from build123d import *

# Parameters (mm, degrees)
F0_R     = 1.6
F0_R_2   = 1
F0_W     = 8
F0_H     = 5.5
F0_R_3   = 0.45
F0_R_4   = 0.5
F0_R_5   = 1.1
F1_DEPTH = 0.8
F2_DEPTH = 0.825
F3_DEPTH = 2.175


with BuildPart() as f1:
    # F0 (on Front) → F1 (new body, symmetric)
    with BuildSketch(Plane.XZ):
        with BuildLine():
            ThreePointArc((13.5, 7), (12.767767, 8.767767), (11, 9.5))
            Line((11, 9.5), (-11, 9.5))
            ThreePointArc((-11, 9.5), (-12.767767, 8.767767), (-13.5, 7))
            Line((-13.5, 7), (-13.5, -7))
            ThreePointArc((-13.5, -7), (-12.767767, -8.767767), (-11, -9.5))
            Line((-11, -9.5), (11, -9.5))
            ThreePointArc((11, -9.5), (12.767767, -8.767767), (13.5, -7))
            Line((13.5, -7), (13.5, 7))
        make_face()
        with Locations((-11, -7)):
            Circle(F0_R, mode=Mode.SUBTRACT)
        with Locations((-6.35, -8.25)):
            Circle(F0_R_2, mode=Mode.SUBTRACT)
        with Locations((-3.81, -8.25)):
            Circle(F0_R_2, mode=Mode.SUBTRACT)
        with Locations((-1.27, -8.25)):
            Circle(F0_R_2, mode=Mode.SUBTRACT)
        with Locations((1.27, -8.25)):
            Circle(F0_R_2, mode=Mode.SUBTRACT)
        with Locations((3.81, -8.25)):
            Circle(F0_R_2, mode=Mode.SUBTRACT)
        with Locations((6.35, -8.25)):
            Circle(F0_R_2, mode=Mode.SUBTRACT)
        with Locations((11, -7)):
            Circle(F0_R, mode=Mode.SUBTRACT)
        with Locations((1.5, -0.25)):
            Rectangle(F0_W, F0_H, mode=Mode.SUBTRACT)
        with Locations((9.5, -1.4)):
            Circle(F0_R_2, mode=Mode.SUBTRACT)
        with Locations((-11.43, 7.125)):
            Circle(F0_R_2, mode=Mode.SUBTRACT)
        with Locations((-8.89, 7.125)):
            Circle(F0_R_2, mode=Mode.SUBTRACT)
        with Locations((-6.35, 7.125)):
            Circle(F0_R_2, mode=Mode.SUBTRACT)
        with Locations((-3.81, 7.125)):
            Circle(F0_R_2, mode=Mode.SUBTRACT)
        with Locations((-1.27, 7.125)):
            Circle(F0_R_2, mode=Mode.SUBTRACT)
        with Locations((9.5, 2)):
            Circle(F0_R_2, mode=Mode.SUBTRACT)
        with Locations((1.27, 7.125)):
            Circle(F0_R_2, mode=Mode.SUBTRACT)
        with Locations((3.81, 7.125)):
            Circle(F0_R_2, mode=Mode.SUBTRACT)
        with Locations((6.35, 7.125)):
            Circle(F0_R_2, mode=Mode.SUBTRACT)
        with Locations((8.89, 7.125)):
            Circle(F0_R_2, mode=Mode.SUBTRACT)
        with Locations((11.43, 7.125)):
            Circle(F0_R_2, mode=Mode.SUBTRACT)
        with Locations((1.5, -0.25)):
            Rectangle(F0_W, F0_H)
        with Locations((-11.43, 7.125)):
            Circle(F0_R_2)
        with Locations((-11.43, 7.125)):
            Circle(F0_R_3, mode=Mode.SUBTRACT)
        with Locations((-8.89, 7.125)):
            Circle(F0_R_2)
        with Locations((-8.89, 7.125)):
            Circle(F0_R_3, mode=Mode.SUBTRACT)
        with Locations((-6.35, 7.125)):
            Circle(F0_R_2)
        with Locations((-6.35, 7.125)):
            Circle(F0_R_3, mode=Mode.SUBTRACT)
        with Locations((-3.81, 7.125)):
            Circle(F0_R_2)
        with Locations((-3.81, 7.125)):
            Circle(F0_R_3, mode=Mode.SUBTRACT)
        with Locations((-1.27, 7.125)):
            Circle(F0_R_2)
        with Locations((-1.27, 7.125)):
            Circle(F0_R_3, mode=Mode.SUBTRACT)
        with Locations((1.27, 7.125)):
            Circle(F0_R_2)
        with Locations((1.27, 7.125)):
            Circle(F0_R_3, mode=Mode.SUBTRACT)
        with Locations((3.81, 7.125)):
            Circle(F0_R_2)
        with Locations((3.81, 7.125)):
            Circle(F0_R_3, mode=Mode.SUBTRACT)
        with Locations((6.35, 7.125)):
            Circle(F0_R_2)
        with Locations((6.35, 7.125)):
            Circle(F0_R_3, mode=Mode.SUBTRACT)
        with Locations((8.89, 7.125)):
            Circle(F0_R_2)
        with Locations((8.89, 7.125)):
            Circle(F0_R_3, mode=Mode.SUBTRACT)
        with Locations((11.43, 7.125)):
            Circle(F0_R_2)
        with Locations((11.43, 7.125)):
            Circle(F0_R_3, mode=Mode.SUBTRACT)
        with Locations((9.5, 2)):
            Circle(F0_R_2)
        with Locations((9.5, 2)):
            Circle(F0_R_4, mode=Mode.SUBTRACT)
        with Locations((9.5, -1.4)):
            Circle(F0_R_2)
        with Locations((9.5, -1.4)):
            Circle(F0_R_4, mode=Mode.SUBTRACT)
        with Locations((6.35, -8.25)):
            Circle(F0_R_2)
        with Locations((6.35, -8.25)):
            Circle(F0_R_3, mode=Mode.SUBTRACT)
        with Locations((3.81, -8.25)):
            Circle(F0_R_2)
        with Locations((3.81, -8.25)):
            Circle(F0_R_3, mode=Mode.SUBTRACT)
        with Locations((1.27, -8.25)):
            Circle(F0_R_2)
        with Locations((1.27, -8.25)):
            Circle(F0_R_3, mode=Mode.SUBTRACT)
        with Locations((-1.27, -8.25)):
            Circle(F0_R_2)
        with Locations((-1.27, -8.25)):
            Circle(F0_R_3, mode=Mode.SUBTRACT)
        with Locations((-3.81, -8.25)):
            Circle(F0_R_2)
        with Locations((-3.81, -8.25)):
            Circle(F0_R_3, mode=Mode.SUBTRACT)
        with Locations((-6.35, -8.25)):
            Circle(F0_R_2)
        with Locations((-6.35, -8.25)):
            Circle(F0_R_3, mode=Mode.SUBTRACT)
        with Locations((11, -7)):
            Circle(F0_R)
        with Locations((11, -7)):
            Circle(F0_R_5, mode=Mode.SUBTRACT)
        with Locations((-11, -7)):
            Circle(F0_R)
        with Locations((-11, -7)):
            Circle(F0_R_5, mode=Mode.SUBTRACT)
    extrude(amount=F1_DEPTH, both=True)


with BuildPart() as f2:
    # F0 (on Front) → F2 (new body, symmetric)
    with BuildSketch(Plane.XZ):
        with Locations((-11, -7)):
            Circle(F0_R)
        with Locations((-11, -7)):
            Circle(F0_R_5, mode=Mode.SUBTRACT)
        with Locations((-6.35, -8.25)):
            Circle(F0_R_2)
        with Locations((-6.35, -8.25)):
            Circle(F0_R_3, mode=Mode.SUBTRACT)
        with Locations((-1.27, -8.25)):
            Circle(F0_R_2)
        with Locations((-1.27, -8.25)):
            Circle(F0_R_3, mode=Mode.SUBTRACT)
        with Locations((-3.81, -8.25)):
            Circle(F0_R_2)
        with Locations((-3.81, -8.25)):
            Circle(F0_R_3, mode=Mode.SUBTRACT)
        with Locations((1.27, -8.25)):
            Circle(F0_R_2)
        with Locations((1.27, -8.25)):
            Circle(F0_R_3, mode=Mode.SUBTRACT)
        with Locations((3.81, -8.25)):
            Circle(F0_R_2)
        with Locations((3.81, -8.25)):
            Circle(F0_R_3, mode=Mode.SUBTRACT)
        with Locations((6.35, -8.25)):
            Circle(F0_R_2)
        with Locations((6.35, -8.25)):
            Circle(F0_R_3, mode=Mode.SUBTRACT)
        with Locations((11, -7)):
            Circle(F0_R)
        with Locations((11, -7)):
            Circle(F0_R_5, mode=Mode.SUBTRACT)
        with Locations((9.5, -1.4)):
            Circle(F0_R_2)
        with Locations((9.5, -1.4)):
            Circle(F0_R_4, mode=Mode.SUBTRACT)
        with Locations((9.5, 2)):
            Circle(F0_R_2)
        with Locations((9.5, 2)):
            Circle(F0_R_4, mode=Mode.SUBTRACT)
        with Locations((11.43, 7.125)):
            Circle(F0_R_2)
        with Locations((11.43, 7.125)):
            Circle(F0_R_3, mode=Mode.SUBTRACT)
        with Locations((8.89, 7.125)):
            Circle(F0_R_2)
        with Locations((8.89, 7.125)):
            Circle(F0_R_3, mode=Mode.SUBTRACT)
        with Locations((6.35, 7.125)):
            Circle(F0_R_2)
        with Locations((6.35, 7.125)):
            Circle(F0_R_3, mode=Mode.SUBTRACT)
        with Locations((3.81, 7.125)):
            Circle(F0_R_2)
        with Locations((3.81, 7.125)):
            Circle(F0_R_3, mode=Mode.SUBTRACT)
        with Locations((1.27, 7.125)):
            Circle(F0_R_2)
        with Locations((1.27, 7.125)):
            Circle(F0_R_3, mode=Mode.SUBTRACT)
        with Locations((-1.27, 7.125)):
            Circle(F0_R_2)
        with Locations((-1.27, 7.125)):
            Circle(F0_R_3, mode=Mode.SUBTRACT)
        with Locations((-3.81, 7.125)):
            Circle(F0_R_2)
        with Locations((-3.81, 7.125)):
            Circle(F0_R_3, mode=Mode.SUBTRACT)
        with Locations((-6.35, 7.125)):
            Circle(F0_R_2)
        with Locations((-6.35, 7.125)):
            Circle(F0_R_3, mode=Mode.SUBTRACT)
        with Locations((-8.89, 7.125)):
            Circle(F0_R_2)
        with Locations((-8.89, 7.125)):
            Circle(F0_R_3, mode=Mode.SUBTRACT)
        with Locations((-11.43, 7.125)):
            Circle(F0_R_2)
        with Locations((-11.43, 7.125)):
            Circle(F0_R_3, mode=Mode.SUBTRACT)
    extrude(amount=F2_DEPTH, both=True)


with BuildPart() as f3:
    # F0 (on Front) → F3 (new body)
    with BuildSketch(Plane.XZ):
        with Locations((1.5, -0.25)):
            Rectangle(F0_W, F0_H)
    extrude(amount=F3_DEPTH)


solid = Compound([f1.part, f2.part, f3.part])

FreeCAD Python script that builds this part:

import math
import FreeCAD as App
import Part
import Sketcher
from FreeCAD import Vector
Q = App.Units.Quantity

doc = App.newDocument("Part")
body = doc.addObject("PartDesign::Body", "Body")

# Sketch on XZ plane
sketch1 = body.newObject("Sketcher::SketchObject", "Sketch")
sketch1.AttachmentSupport = (doc.getObject("XZ_Plane"), [""])
sketch1.MapMode = "FlatFace"
sketch1.addGeometry(Part.ArcOfCircle(Part.Circle(Vector(11, 7, 0), Vector(0, 0, 1), 2.5), math.radians(0), math.radians(90)), False)
sketch1.addGeometry(Part.LineSegment(Vector(11, 9.5, 0), Vector(-11, 9.5, 0)), False)
sketch1.addGeometry(Part.ArcOfCircle(Part.Circle(Vector(-11, 7, 0), Vector(0, 0, 1), 2.5), math.radians(90), math.radians(180)), False)
sketch1.addGeometry(Part.LineSegment(Vector(-13.5, 7, 0), Vector(-13.5, -7, 0)), False)
sketch1.addGeometry(Part.ArcOfCircle(Part.Circle(Vector(-11, -7, 0), Vector(0, 0, 1), 2.5), math.radians(180), math.radians(270)), False)
sketch1.addGeometry(Part.LineSegment(Vector(-11, -9.5, 0), Vector(11, -9.5, 0)), False)
sketch1.addGeometry(Part.ArcOfCircle(Part.Circle(Vector(11, -7, 0), Vector(0, 0, 1), 2.5), math.radians(-90), math.radians(0)), False)
sketch1.addGeometry(Part.LineSegment(Vector(13.5, -7, 0), Vector(13.5, 7, 0)), False)
sketch1.addGeometry(Part.Circle(Vector(-11, -7, 0), Vector(0, 0, 1), 1.1), False)
sketch1.addGeometry(Part.Circle(Vector(-6.35, -8.25, 0), Vector(0, 0, 1), 0.45), False)
sketch1.addGeometry(Part.Circle(Vector(-3.81, -8.25, 0), Vector(0, 0, 1), 0.45), False)
sketch1.addGeometry(Part.Circle(Vector(-1.27, -8.25, 0), Vector(0, 0, 1), 0.45), False)
sketch1.addGeometry(Part.Circle(Vector(1.27, -8.25, 0), Vector(0, 0, 1), 0.45), False)
sketch1.addGeometry(Part.Circle(Vector(3.81, -8.25, 0), Vector(0, 0, 1), 0.45), False)
sketch1.addGeometry(Part.Circle(Vector(6.35, -8.25, 0), Vector(0, 0, 1), 0.45), False)
sketch1.addGeometry(Part.Circle(Vector(11, -7, 0), Vector(0, 0, 1), 1.1), False)
sketch1.addGeometry(Part.Circle(Vector(9.5, -1.4, 0), Vector(0, 0, 1), 0.5), False)
sketch1.addGeometry(Part.Circle(Vector(-11.43, 7.12, 0), Vector(0, 0, 1), 0.45), False)
sketch1.addGeometry(Part.Circle(Vector(-8.89, 7.12, 0), Vector(0, 0, 1), 0.45), False)
sketch1.addGeometry(Part.Circle(Vector(-6.35, 7.12, 0), Vector(0, 0, 1), 0.45), False)
sketch1.addGeometry(Part.Circle(Vector(-3.81, 7.12, 0), Vector(0, 0, 1), 0.45), False)
sketch1.addGeometry(Part.Circle(Vector(-1.27, 7.12, 0), Vector(0, 0, 1), 0.45), False)
sketch1.addGeometry(Part.Circle(Vector(9.5, 2, 0), Vector(0, 0, 1), 0.5), False)
sketch1.addGeometry(Part.Circle(Vector(1.27, 7.12, 0), Vector(0, 0, 1), 0.45), False)
sketch1.addGeometry(Part.Circle(Vector(3.81, 7.12, 0), Vector(0, 0, 1), 0.45), False)
sketch1.addGeometry(Part.Circle(Vector(6.35, 7.12, 0), Vector(0, 0, 1), 0.45), False)
sketch1.addGeometry(Part.Circle(Vector(8.89, 7.12, 0), Vector(0, 0, 1), 0.45), False)
sketch1.addGeometry(Part.Circle(Vector(11.43, 7.12, 0), Vector(0, 0, 1), 0.45), False)
sketch1.addConstraint(Sketcher.Constraint("Tangent", 0, 2, 1, 1))
sketch1.addConstraint(Sketcher.Constraint("Tangent", 1, 2, 2, 1))
sketch1.addConstraint(Sketcher.Constraint("Tangent", 2, 2, 3, 1))
sketch1.addConstraint(Sketcher.Constraint("Tangent", 3, 2, 4, 1))
sketch1.addConstraint(Sketcher.Constraint("Tangent", 4, 2, 5, 1))
sketch1.addConstraint(Sketcher.Constraint("Tangent", 5, 2, 6, 1))
sketch1.addConstraint(Sketcher.Constraint("Tangent", 6, 2, 7, 1))
sketch1.addConstraint(Sketcher.Constraint("Tangent", 7, 2, 0, 1))
sketch1.addConstraint(Sketcher.Constraint("Horizontal", 1))
sketch1.addConstraint(Sketcher.Constraint("Vertical", 3))
sketch1.addConstraint(Sketcher.Constraint("Horizontal", 5))
sketch1.addConstraint(Sketcher.Constraint("Vertical", 7))
sketch1.addConstraint(Sketcher.Constraint("Coincident", 8, 3, 4, 3))
sketch1.addConstraint(Sketcher.Constraint("Coincident", 15, 3, 6, 3))
sketch1.addConstraint(Sketcher.Constraint("Equal", 0, 2))
sketch1.addConstraint(Sketcher.Constraint("Equal", 2, 4))
sketch1.addConstraint(Sketcher.Constraint("Equal", 4, 6))
sketch1.addConstraint(Sketcher.Constraint("Equal", 9, 10))
sketch1.addConstraint(Sketcher.Constraint("Equal", 10, 11))
sketch1.addConstraint(Sketcher.Constraint("Equal", 11, 12))
sketch1.addConstraint(Sketcher.Constraint("Equal", 12, 13))
sketch1.addConstraint(Sketcher.Constraint("Equal", 13, 14))
sketch1.addConstraint(Sketcher.Constraint("Equal", 8, 15))
sketch1.addConstraint(Sketcher.Constraint("Equal", 14, 17))
sketch1.addConstraint(Sketcher.Constraint("Equal", 17, 18))
sketch1.addConstraint(Sketcher.Constraint("Equal", 18, 19))
sketch1.addConstraint(Sketcher.Constraint("Equal", 19, 20))
sketch1.addConstraint(Sketcher.Constraint("Equal", 20, 21))
sketch1.addConstraint(Sketcher.Constraint("Equal", 16, 22))
sketch1.addConstraint(Sketcher.Constraint("Equal", 21, 23))
sketch1.addConstraint(Sketcher.Constraint("Equal", 23, 24))
sketch1.addConstraint(Sketcher.Constraint("Equal", 24, 25))
sketch1.addConstraint(Sketcher.Constraint("Equal", 25, 26))
sketch1.addConstraint(Sketcher.Constraint("Equal", 26, 27))
sketch1.addConstraint(Sketcher.Constraint("Symmetric", 0, 3, 4, 3, -1, 1))
sketch1.addConstraint(Sketcher.Constraint("Symmetric", 11, 3, 12, 3, -2))
sketch1.addConstraint(Sketcher.Constraint("Symmetric", 10, 3, 13, 3, -2))
sketch1.addConstraint(Sketcher.Constraint("Symmetric", 9, 3, 14, 3, -2))
sketch1.addConstraint(Sketcher.Constraint("Symmetric", 21, 3, 23, 3, -2))
sketch1.addConstraint(Sketcher.Constraint("Symmetric", 20, 3, 24, 3, -2))
sketch1.addConstraint(Sketcher.Constraint("Symmetric", 19, 3, 25, 3, -2))
sketch1.addConstraint(Sketcher.Constraint("Symmetric", 18, 3, 26, 3, -2))
sketch1.addConstraint(Sketcher.Constraint("Symmetric", 17, 3, 27, 3, -2))
sketch1.addConstraint(Sketcher.Constraint("Horizontal", 9, 3, 10, 3))
sketch1.addConstraint(Sketcher.Constraint("Horizontal", 10, 3, 11, 3))
sketch1.addConstraint(Sketcher.Constraint("Horizontal", 17, 3, 18, 3))
sketch1.addConstraint(Sketcher.Constraint("Horizontal", 18, 3, 19, 3))
sketch1.addConstraint(Sketcher.Constraint("Horizontal", 19, 3, 20, 3))
sketch1.addConstraint(Sketcher.Constraint("Horizontal", 20, 3, 21, 3))
sketch1.addConstraint(Sketcher.Constraint("Vertical", 9, 3, 19, 3))
sketch1.addConstraint(Sketcher.Constraint("Vertical", 10, 3, 20, 3))
sketch1.addConstraint(Sketcher.Constraint("Vertical", 11, 3, 21, 3))
sketch1.addConstraint(Sketcher.Constraint("Vertical", 16, 3, 22, 3))
sketch1.addConstraint(Sketcher.Constraint("Diameter", 16, Q("1 mm")))
sketch1.addConstraint(Sketcher.Constraint("Diameter", 8, Q("2.2 mm")))
sketch1.addConstraint(Sketcher.Constraint("Diameter", 9, Q("0.9 mm")))
sketch1.addConstraint(Sketcher.Constraint("Radius", 0, Q("2.5 mm")))
sketch1.addConstraint(Sketcher.Constraint("DistanceX", 1, 2, 1, 1, Q("22 mm")))
sketch1.addConstraint(Sketcher.Constraint("DistanceY", 3, 2, 3, 1, Q("14 mm")))
sketch1.addConstraint(Sketcher.Constraint("DistanceY", -1, 1, 22, 3, Q("2 mm")))
sketch1.addConstraint(Sketcher.Constraint("DistanceX", 16, 3, 6, 2, Q("4 mm")))
sketch1.addConstraint(Sketcher.Constraint("DistanceY", 16, 3, -1, 1, Q("1.4 mm")))
sketch1.addConstraint(Sketcher.Constraint("DistanceX", 9, 3, -1, 1, Q("6.35 mm")))
sketch1.addConstraint(Sketcher.Constraint("DistanceY", 9, 3, -1, 1, Q("8.25 mm")))
sketch1.addConstraint(Sketcher.Constraint("DistanceX", 10, 3, -1, 1, Q("3.81 mm")))
sketch1.addConstraint(Sketcher.Constraint("DistanceX", 11, 3, -1, 1, Q("1.27 mm")))
sketch1.addConstraint(Sketcher.Constraint("DistanceX", 17, 3, -1, 1, Q("11.43 mm")))
sketch1.addConstraint(Sketcher.Constraint("DistanceX", 18, 3, -1, 1, Q("8.89 mm")))
sketch1.addConstraint(Sketcher.Constraint("DistanceY", -1, 1, 17, 3, Q("7.125 mm")))
pad1 = body.newObject("PartDesign::Pad", "Pad")
pad1.Profile = sketch1
pad1.Length = 1.6
pad1.Midplane = True
body2 = doc.addObject("PartDesign::Body", "Body001")
body2.AllowCompound = True

# Sketch on XZ plane
sketch2 = body2.newObject("Sketcher::SketchObject", "Sketch001")
sketch2.AttachmentSupport = (doc.getObject("XZ_Plane001"), [""])
sketch2.MapMode = "FlatFace"
sketch2.addGeometry(Part.Circle(Vector(-11, -7, 0), Vector(0, 0, 1), 1.6), False)
sketch2.addGeometry(Part.Circle(Vector(-11, -7, 0), Vector(0, 0, 1), 1.1), False)
sketch2.addGeometry(Part.Circle(Vector(-6.35, -8.25, 0), Vector(0, 0, 1), 1), False)
sketch2.addGeometry(Part.Circle(Vector(-6.35, -8.25, 0), Vector(0, 0, 1), 0.45), False)
sketch2.addGeometry(Part.Circle(Vector(-1.27, -8.25, 0), Vector(0, 0, 1), 1), False)
sketch2.addGeometry(Part.Circle(Vector(-1.27, -8.25, 0), Vector(0, 0, 1), 0.45), False)
sketch2.addGeometry(Part.Circle(Vector(-3.81, -8.25, 0), Vector(0, 0, 1), 1), False)
sketch2.addGeometry(Part.Circle(Vector(-3.81, -8.25, 0), Vector(0, 0, 1), 0.45), False)
sketch2.addGeometry(Part.Circle(Vector(1.27, -8.25, 0), Vector(0, 0, 1), 1), False)
sketch2.addGeometry(Part.Circle(Vector(1.27, -8.25, 0), Vector(0, 0, 1), 0.45), False)
sketch2.addGeometry(Part.Circle(Vector(3.81, -8.25, 0), Vector(0, 0, 1), 1), False)
sketch2.addGeometry(Part.Circle(Vector(3.81, -8.25, 0), Vector(0, 0, 1), 0.45), False)
sketch2.addGeometry(Part.Circle(Vector(6.35, -8.25, 0), Vector(0, 0, 1), 1), False)
sketch2.addGeometry(Part.Circle(Vector(6.35, -8.25, 0), Vector(0, 0, 1), 0.45), False)
sketch2.addGeometry(Part.Circle(Vector(11, -7, 0), Vector(0, 0, 1), 1.6), False)
sketch2.addGeometry(Part.Circle(Vector(11, -7, 0), Vector(0, 0, 1), 1.1), False)
sketch2.addGeometry(Part.Circle(Vector(9.5, -1.4, 0), Vector(0, 0, 1), 1), False)
sketch2.addGeometry(Part.Circle(Vector(9.5, -1.4, 0), Vector(0, 0, 1), 0.5), False)
sketch2.addGeometry(Part.Circle(Vector(9.5, 2, 0), Vector(0, 0, 1), 1), False)
sketch2.addGeometry(Part.Circle(Vector(9.5, 2, 0), Vector(0, 0, 1), 0.5), False)
sketch2.addGeometry(Part.Circle(Vector(11.43, 7.12, 0), Vector(0, 0, 1), 1), False)
sketch2.addGeometry(Part.Circle(Vector(11.43, 7.12, 0), Vector(0, 0, 1), 0.45), False)
sketch2.addGeometry(Part.Circle(Vector(8.89, 7.12, 0), Vector(0, 0, 1), 1), False)
sketch2.addGeometry(Part.Circle(Vector(8.89, 7.12, 0), Vector(0, 0, 1), 0.45), False)
sketch2.addGeometry(Part.Circle(Vector(6.35, 7.12, 0), Vector(0, 0, 1), 1), False)
sketch2.addGeometry(Part.Circle(Vector(6.35, 7.12, 0), Vector(0, 0, 1), 0.45), False)
sketch2.addGeometry(Part.Circle(Vector(3.81, 7.12, 0), Vector(0, 0, 1), 1), False)
sketch2.addGeometry(Part.Circle(Vector(3.81, 7.12, 0), Vector(0, 0, 1), 0.45), False)
sketch2.addGeometry(Part.Circle(Vector(1.27, 7.12, 0), Vector(0, 0, 1), 1), False)
sketch2.addGeometry(Part.Circle(Vector(1.27, 7.12, 0), Vector(0, 0, 1), 0.45), False)
sketch2.addGeometry(Part.Circle(Vector(-1.27, 7.12, 0), Vector(0, 0, 1), 1), False)
sketch2.addGeometry(Part.Circle(Vector(-1.27, 7.12, 0), Vector(0, 0, 1), 0.45), False)
sketch2.addGeometry(Part.Circle(Vector(-3.81, 7.12, 0), Vector(0, 0, 1), 1), False)
sketch2.addGeometry(Part.Circle(Vector(-3.81, 7.12, 0), Vector(0, 0, 1), 0.45), False)
sketch2.addGeometry(Part.Circle(Vector(-6.35, 7.12, 0), Vector(0, 0, 1), 1), False)
sketch2.addGeometry(Part.Circle(Vector(-6.35, 7.12, 0), Vector(0, 0, 1), 0.45), False)
sketch2.addGeometry(Part.Circle(Vector(-8.89, 7.12, 0), Vector(0, 0, 1), 1), False)
sketch2.addGeometry(Part.Circle(Vector(-8.89, 7.12, 0), Vector(0, 0, 1), 0.45), False)
sketch2.addGeometry(Part.Circle(Vector(-11.43, 7.12, 0), Vector(0, 0, 1), 1), False)
sketch2.addGeometry(Part.Circle(Vector(-11.43, 7.12, 0), Vector(0, 0, 1), 0.45), False)
sketch2.addConstraint(Sketcher.Constraint("Coincident", 1, 3, 0, 3))
sketch2.addConstraint(Sketcher.Constraint("Coincident", 3, 3, 2, 3))
sketch2.addConstraint(Sketcher.Constraint("Coincident", 5, 3, 4, 3))
sketch2.addConstraint(Sketcher.Constraint("Coincident", 7, 3, 6, 3))
sketch2.addConstraint(Sketcher.Constraint("Coincident", 9, 3, 8, 3))
sketch2.addConstraint(Sketcher.Constraint("Coincident", 11, 3, 10, 3))
sketch2.addConstraint(Sketcher.Constraint("Coincident", 13, 3, 12, 3))
sketch2.addConstraint(Sketcher.Constraint("Coincident", 15, 3, 14, 3))
sketch2.addConstraint(Sketcher.Constraint("Coincident", 17, 3, 16, 3))
sketch2.addConstraint(Sketcher.Constraint("Coincident", 19, 3, 18, 3))
sketch2.addConstraint(Sketcher.Constraint("Coincident", 21, 3, 20, 3))
sketch2.addConstraint(Sketcher.Constraint("Coincident", 23, 3, 22, 3))
sketch2.addConstraint(Sketcher.Constraint("Coincident", 25, 3, 24, 3))
sketch2.addConstraint(Sketcher.Constraint("Coincident", 27, 3, 26, 3))
sketch2.addConstraint(Sketcher.Constraint("Coincident", 29, 3, 28, 3))
sketch2.addConstraint(Sketcher.Constraint("Coincident", 31, 3, 30, 3))
sketch2.addConstraint(Sketcher.Constraint("Coincident", 33, 3, 32, 3))
sketch2.addConstraint(Sketcher.Constraint("Coincident", 35, 3, 34, 3))
sketch2.addConstraint(Sketcher.Constraint("Coincident", 37, 3, 36, 3))
sketch2.addConstraint(Sketcher.Constraint("Coincident", 39, 3, 38, 3))
sketch2.addConstraint(Sketcher.Constraint("Equal", 2, 4))
sketch2.addConstraint(Sketcher.Constraint("Equal", 3, 5))
sketch2.addConstraint(Sketcher.Constraint("Equal", 4, 6))
sketch2.addConstraint(Sketcher.Constraint("Equal", 5, 7))
sketch2.addConstraint(Sketcher.Constraint("Equal", 6, 8))
sketch2.addConstraint(Sketcher.Constraint("Equal", 7, 9))
sketch2.addConstraint(Sketcher.Constraint("Equal", 8, 10))
sketch2.addConstraint(Sketcher.Constraint("Equal", 9, 11))
sketch2.addConstraint(Sketcher.Constraint("Equal", 10, 12))
sketch2.addConstraint(Sketcher.Constraint("Equal", 11, 13))
sketch2.addConstraint(Sketcher.Constraint("Equal", 0, 14))
sketch2.addConstraint(Sketcher.Constraint("Equal", 1, 15))
sketch2.addConstraint(Sketcher.Constraint("Equal", 12, 16))
sketch2.addConstraint(Sketcher.Constraint("Equal", 16, 18))
sketch2.addConstraint(Sketcher.Constraint("Equal", 17, 19))
sketch2.addConstraint(Sketcher.Constraint("Equal", 18, 20))
sketch2.addConstraint(Sketcher.Constraint("Equal", 13, 21))
sketch2.addConstraint(Sketcher.Constraint("Equal", 20, 22))
sketch2.addConstraint(Sketcher.Constraint("Equal", 21, 23))
sketch2.addConstraint(Sketcher.Constraint("Equal", 22, 24))
sketch2.addConstraint(Sketcher.Constraint("Equal", 23, 25))
sketch2.addConstraint(Sketcher.Constraint("Equal", 24, 26))
sketch2.addConstraint(Sketcher.Constraint("Equal", 25, 27))
sketch2.addConstraint(Sketcher.Constraint("Equal", 26, 28))
sketch2.addConstraint(Sketcher.Constraint("Equal", 27, 29))
sketch2.addConstraint(Sketcher.Constraint("Equal", 28, 30))
sketch2.addConstraint(Sketcher.Constraint("Equal", 29, 31))
sketch2.addConstraint(Sketcher.Constraint("Equal", 30, 32))
sketch2.addConstraint(Sketcher.Constraint("Equal", 31, 33))
sketch2.addConstraint(Sketcher.Constraint("Equal", 32, 34))
sketch2.addConstraint(Sketcher.Constraint("Equal", 33, 35))
sketch2.addConstraint(Sketcher.Constraint("Equal", 34, 36))
sketch2.addConstraint(Sketcher.Constraint("Equal", 35, 37))
sketch2.addConstraint(Sketcher.Constraint("Equal", 36, 38))
sketch2.addConstraint(Sketcher.Constraint("Equal", 37, 39))
sketch2.addConstraint(Sketcher.Constraint("Symmetric", 4, 3, 8, 3, -2))
sketch2.addConstraint(Sketcher.Constraint("Symmetric", 6, 3, 10, 3, -2))
sketch2.addConstraint(Sketcher.Constraint("Symmetric", 2, 3, 12, 3, -2))
sketch2.addConstraint(Sketcher.Constraint("Symmetric", 0, 3, 14, 3, -2))
sketch2.addConstraint(Sketcher.Constraint("Symmetric", 28, 3, 30, 3, -2))
sketch2.addConstraint(Sketcher.Constraint("Symmetric", 26, 3, 32, 3, -2))
sketch2.addConstraint(Sketcher.Constraint("Symmetric", 24, 3, 34, 3, -2))
sketch2.addConstraint(Sketcher.Constraint("Symmetric", 22, 3, 36, 3, -2))
sketch2.addConstraint(Sketcher.Constraint("Symmetric", 20, 3, 38, 3, -2))
sketch2.addConstraint(Sketcher.Constraint("Horizontal", 3, 3, 4, 3))
sketch2.addConstraint(Sketcher.Constraint("Horizontal", 5, 3, 6, 3))
sketch2.addConstraint(Sketcher.Constraint("Horizontal", 21, 3, 22, 3))
sketch2.addConstraint(Sketcher.Constraint("Horizontal", 23, 3, 24, 3))
sketch2.addConstraint(Sketcher.Constraint("Horizontal", 25, 3, 26, 3))
sketch2.addConstraint(Sketcher.Constraint("Horizontal", 27, 3, 28, 3))
sketch2.addConstraint(Sketcher.Constraint("Vertical", 17, 3, 18, 3))
sketch2.addConstraint(Sketcher.Constraint("Vertical", 13, 3, 24, 3))
sketch2.addConstraint(Sketcher.Constraint("Vertical", 11, 3, 26, 3))
sketch2.addConstraint(Sketcher.Constraint("Vertical", 9, 3, 28, 3))
sketch2.addConstraint(Sketcher.Constraint("Diameter", 2, Q("2 mm")))
sketch2.addConstraint(Sketcher.Constraint("Diameter", 17, Q("1 mm")))
sketch2.addConstraint(Sketcher.Constraint("Diameter", 0, Q("3.2 mm")))
sketch2.addConstraint(Sketcher.Constraint("Diameter", 1, Q("2.2 mm")))
sketch2.addConstraint(Sketcher.Constraint("Diameter", 3, Q("0.9 mm")))
sketch2.addConstraint(Sketcher.Constraint("DistanceX", 0, 3, -1, 1, Q("11 mm")))
sketch2.addConstraint(Sketcher.Constraint("DistanceY", 0, 3, -1, 1, Q("7 mm")))
sketch2.addConstraint(Sketcher.Constraint("DistanceY", -1, 1, 18, 3, Q("2 mm")))
sketch2.addConstraint(Sketcher.Constraint("DistanceX", -1, 1, 16, 3, Q("9.5 mm")))
sketch2.addConstraint(Sketcher.Constraint("DistanceY", 16, 3, -1, 1, Q("1.4 mm")))
sketch2.addConstraint(Sketcher.Constraint("DistanceX", 2, 3, -1, 1, Q("6.35 mm")))
sketch2.addConstraint(Sketcher.Constraint("DistanceY", 2, 3, -1, 1, Q("8.25 mm")))
sketch2.addConstraint(Sketcher.Constraint("DistanceX", 4, 3, -1, 1, Q("1.27 mm")))
sketch2.addConstraint(Sketcher.Constraint("DistanceX", 6, 3, -1, 1, Q("3.81 mm")))
sketch2.addConstraint(Sketcher.Constraint("DistanceX", -1, 1, 20, 3, Q("11.43 mm")))
sketch2.addConstraint(Sketcher.Constraint("DistanceX", -1, 1, 22, 3, Q("8.89 mm")))
sketch2.addConstraint(Sketcher.Constraint("DistanceY", -1, 1, 20, 3, Q("7.125 mm")))
pad2 = body2.newObject("PartDesign::Pad", "Pad001")
pad2.Profile = sketch2
pad2.Length = 1.65
pad2.Midplane = True
body3 = doc.addObject("PartDesign::Body", "Body002")

# Sketch on XZ plane
sketch3 = body3.newObject("Sketcher::SketchObject", "Sketch002")
sketch3.AttachmentSupport = (doc.getObject("XZ_Plane002"), [""])
sketch3.MapMode = "FlatFace"
sketch3.addGeometry(Part.LineSegment(Vector(-2, 2, 0), Vector(-2, -3, 0)), False)
sketch3.addGeometry(Part.LineSegment(Vector(-2, -3, 0), Vector(6, -3, 0)), False)
sketch3.addGeometry(Part.LineSegment(Vector(6, -3, 0), Vector(6, 2, 0)), False)
sketch3.addGeometry(Part.LineSegment(Vector(6, 2, 0), Vector(-2, 2, 0)), False)
sketch3.addConstraint(Sketcher.Constraint("Coincident", 0, 2, 1, 1))
sketch3.addConstraint(Sketcher.Constraint("Coincident", 1, 2, 2, 1))
sketch3.addConstraint(Sketcher.Constraint("Coincident", 2, 2, 3, 1))
sketch3.addConstraint(Sketcher.Constraint("Coincident", 3, 2, 0, 1))
sketch3.addConstraint(Sketcher.Constraint("Vertical", 0))
sketch3.addConstraint(Sketcher.Constraint("Horizontal", 1))
sketch3.addConstraint(Sketcher.Constraint("Vertical", 2))
sketch3.addConstraint(Sketcher.Constraint("Horizontal", 3))
sketch3.addConstraint(Sketcher.Constraint("DistanceX", 1, 1, 1, 2, Q("8 mm")))
sketch3.addConstraint(Sketcher.Constraint("DistanceY", 0, 2, 0, 1, Q("5.5 mm")))
sketch3.addConstraint(Sketcher.Constraint("DistanceY", 0, 2, -1, 1, Q("3 mm")))
sketch3.addConstraint(Sketcher.Constraint("DistanceX", 0, 2, -1, 1, Q("2.5 mm")))
pad3 = body3.newObject("PartDesign::Pad", "Pad002")
pad3.Profile = sketch3
pad3.Length = 2.175

doc.recompute()
